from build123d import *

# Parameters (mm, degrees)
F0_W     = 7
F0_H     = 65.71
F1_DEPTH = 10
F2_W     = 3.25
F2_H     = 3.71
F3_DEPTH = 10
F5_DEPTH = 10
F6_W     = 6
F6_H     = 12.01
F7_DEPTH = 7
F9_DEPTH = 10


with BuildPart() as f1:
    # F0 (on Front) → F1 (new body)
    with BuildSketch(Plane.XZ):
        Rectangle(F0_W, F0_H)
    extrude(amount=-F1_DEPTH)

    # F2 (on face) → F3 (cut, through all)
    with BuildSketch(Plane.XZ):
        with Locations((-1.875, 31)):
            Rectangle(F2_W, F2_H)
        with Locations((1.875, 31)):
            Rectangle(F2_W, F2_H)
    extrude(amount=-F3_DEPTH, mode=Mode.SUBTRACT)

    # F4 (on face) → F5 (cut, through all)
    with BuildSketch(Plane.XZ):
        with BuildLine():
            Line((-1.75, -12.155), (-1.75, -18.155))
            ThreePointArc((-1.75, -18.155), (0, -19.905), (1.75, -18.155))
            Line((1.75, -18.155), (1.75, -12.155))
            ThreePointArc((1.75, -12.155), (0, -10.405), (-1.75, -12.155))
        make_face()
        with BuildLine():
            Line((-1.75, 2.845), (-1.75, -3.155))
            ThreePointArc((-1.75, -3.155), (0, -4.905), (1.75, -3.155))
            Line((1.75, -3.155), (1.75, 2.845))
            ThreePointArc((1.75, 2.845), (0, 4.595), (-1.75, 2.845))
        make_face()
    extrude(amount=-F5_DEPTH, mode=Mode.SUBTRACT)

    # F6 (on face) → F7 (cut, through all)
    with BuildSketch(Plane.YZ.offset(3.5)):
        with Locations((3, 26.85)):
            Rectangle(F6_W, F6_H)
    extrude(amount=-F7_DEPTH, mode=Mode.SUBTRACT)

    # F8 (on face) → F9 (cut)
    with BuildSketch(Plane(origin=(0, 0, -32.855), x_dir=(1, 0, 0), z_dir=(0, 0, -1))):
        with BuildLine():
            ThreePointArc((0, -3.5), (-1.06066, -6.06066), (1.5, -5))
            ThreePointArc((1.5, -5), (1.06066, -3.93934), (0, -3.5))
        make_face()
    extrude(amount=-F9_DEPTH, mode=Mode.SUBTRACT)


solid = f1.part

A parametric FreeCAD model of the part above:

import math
import FreeCAD as App
import Part
import Sketcher

V = App.Vector
Q = App.Units.Quantity

doc = App.newDocument("Part")
params = doc.addObject("Spreadsheet::Sheet", "Params")
for row, (alias, value) in enumerate([
    ("sketch1_width", "7 mm"),
    ("sketch1_height", "65.71 mm"),
    ("pad1_length", "10 mm"),
    ("sketch2_width", "3.25 mm"),
    ("sketch2_height", "3.71 mm"),
    ("sketch3_height", "6 mm"),
    ("sketch3_radius", "1.75 mm"),
    ("sketch4_width", "6 mm"),
    ("sketch4_height", "12.01 mm"),
    ("sketch5_radius", "1.5 mm"),
    ("pocket4_length", "10 mm"),
], start=1):
    params.set(f"A{row}", alias)
    params.set(f"B{row}", "=" + value)
    params.setAlias(f"B{row}", alias)

body = doc.addObject("PartDesign::Body", "Body")

# Sketch on XZ plane
sketch1 = doc.addObject("Sketcher::SketchObject", "Sketch")
body.addObject(sketch1)
sketch1.AttachmentSupport = (doc.XZ_Plane, [""])
sketch1.MapMode = "FlatFace"
sketch1.addGeometry([
    Part.LineSegment(V(-4, 33, 0), V(-4, -33, 0)),
    Part.LineSegment(V(-4, -33, 0), V(4, -33, 0)),
    Part.LineSegment(V(4, -33, 0), V(4, 33, 0)),
    Part.LineSegment(V(4, 33, 0), V(-4, 33, 0)),
], False)
sketch1.addConstraint([
    Sketcher.Constraint("Coincident", 0, 2, 1, 1),
    Sketcher.Constraint("Coincident", 1, 2, 2, 1),
    Sketcher.Constraint("Coincident", 2, 2, 3, 1),
    Sketcher.Constraint("Coincident", 3, 2, 0, 1),
    Sketcher.Constraint("Vertical", 0),
    Sketcher.Constraint("Horizontal", 1),
    Sketcher.Constraint("Vertical", 2),
    Sketcher.Constraint("Horizontal", 3),
    Sketcher.Constraint("Symmetric", 0, 2, 2, 2, -1, 1),
    Sketcher.Constraint("DistanceX", 1, 1, 1, 2, Q("7 mm")),
    Sketcher.Constraint("DistanceY", 0, 2, 0, 1, Q("65.71 mm")),
])
sketch1.setExpression("Constraints[9]", "Params.sketch1_width")
sketch1.setExpression("Constraints[10]", "Params.sketch1_height")
pad1 = doc.addObject("PartDesign::Pad", "Pad")
body.addObject(pad1)
pad1.Profile = sketch1
pad1.setExpression("Length", "Params.pad1_length")
pad1.Reversed = True

# Sketch on XZ plane
sketch2 = doc.addObject("Sketcher::SketchObject", "Sketch001")
body.addObject(sketch2)
sketch2.AttachmentSupport = (doc.XZ_Plane, [""])
sketch2.MapMode = "FlatFace"
sketch2.addGeometry([
    Part.LineSegment(V(-3.5, 32.9, 0), V(-3.5, 29.1, 0)),  # 0
    Part.LineSegment(V(-3.5, 29.1, 0), V(-0.2, 29.1, 0)),  # 1
    Part.LineSegment(V(-0.2, 29.1, 0), V(-0.2, 32.9, 0)),  # 2
    Part.LineSegment(V(-0.2, 32.9, 0), V(-3.5, 32.9, 0)),  # 3
    Part.LineSegment(V(0.2, 32.9, 0), V(0.2, 29.1, 0)),  # 4
    Part.LineSegment(V(0.2, 29.1, 0), V(3.5, 29.1, 0)),  # 5
    Part.LineSegment(V(3.5, 29.1, 0), V(3.5, 32.9, 0)),  # 6
    Part.LineSegment(V(3.5, 32.9, 0), V(0.2, 32.9, 0)),  # 7
], False)
sketch2.addConstraint([
    Sketcher.Constraint("Coincident", 0, 2, 1, 1),
    Sketcher.Constraint("Coincident", 1, 2, 2, 1),
    Sketcher.Constraint("Coincident", 2, 2, 3, 1),
    Sketcher.Constraint("Coincident", 3, 2, 0, 1),
    Sketcher.Constraint("Coincident", 4, 2, 5, 1),
    Sketcher.Constraint("Coincident", 5, 2, 6, 1),
    Sketcher.Constraint("Coincident", 6, 2, 7, 1),
    Sketcher.Constraint("Coincident", 7, 2, 4, 1),
    Sketcher.Constraint("Vertical", 0),
    Sketcher.Constraint("Horizontal", 1),
    Sketcher.Constraint("Vertical", 2),
    Sketcher.Constraint("Horizontal", 3),
    Sketcher.Constraint("Vertical", 4),
    Sketcher.Constraint("Horizontal", 5),
    Sketcher.Constraint("Vertical", 6),
    Sketcher.Constraint("Horizontal", 7),
    Sketcher.Constraint("Symmetric", 1, 2, 4, 2, -2),
    Sketcher.Constraint("Symmetric", 3, 2, 6, 2, -2),
    Sketcher.Constraint("DistanceX", 0, 2, 5, 2, Q("7 mm")),
    Sketcher.Constraint("DistanceX", 1, 1, 1, 2, Q("3.25 mm")),
    Sketcher.Constraint("DistanceY", 0, 2, 0, 1, Q("3.71 mm")),
    Sketcher.Constraint("DistanceY", -1, 1, 0, 2, Q("29.145 mm")),
])
sketch2.setExpression("Constraints[19]", "Params.sketch2_width")
sketch2.setExpression("Constraints[20]", "Params.sketch2_height")
pocket1 = doc.addObject("PartDesign::Pocket", "Pocket")
body.addObject(pocket1)
pocket1.Profile = sketch2
pocket1.Type = "ThroughAll"

# Sketch on XZ plane
sketch3 = doc.addObject("Sketcher::SketchObject", "Sketch002")
body.addObject(sketch3)
sketch3.AttachmentSupport = (doc.XZ_Plane, [""])
sketch3.MapMode = "FlatFace"
sketch3.addGeometry([
    Part.LineSegment(V(-1.8, -12.2, 0), V(-1.8, -18.2, 0)),  # 0
    Part.ArcOfCircle(Part.Circle(V(0, -18.2, 0), V(0, 0, 1), 1.8), math.radians(180), math.radians(360)),  # 1
    Part.LineSegment(V(1.8, -18.2, 0), V(1.8, -12.2, 0)),  # 2
    Part.ArcOfCircle(Part.Circle(V(0, -12.2, 0), V(0, 0, 1), 1.8), math.radians(0), math.radians(180)),  # 3
    Part.LineSegment(V(-1.8, 2.8, 0), V(-1.8, -3.2, 0)),  # 4
    Part.ArcOfCircle(Part.Circle(V(0, -3.2, 0), V(0, 0, 1), 1.8), math.radians(180), math.radians(360)),  # 5
    Part.LineSegment(V(1.8, -3.2, 0), V(1.8, 2.8, 0)),  # 6
    Part.ArcOfCircle(Part.Circle(V(0, 2.8, 0), V(0, 0, 1), 1.8), math.radians(0), math.radians(180)),  # 7
], False)
sketch3.addConstraint([
    Sketcher.Constraint("Tangent", 0, 2, 1, 1),
    Sketcher.Constraint("Tangent", 1, 2, 2, 1),
    Sketcher.Constraint("Tangent", 2, 2, 3, 1),
    Sketcher.Constraint("Tangent", 3, 2, 0, 1),
    Sketcher.Constraint("Tangent", 4, 2, 5, 1),
    Sketcher.Constraint("Tangent", 5, 2, 6, 1),
    Sketcher.Constraint("Tangent", 6, 2, 7, 1),
    Sketcher.Constraint("Tangent", 7, 2, 4, 1),
    Sketcher.Constraint("Vertical", 0),
    Sketcher.Constraint("Vertical", 2),
    Sketcher.Constraint("Vertical", 4),
    Sketcher.Constraint("Vertical", 6),
    Sketcher.Constraint("Equal", 3, 5),
    Sketcher.Constraint("PointOnObject", 1, 3, -2),
    Sketcher.Constraint("PointOnObject", 5, 3, -2),
    Sketcher.Constraint("Equal", 2, 4),
    Sketcher.Constraint("DistanceY", 0, 2, 0, 1, Q("6 mm")),
    Sketcher.Constraint("Radius", 1, Q("1.75 mm")),
    Sketcher.Constraint("DistanceY", 3, 3, 5, 3, Q("9 mm")),
    Sketcher.Constraint("DistanceY", 1, 3, -1, 1, Q("18.155 mm")),
])
sketch3.setExpression("Constraints[16]", "Params.sketch3_height")
sketch3.setExpression("Constraints[17]", "Params.sketch3_radius")
pocket2 = doc.addObject("PartDesign::Pocket", "Pocket001")
body.addObject(pocket2)
pocket2.Profile = sketch3
pocket2.Type = "ThroughAll"

# Sketch on YZ plane
sketch4 = doc.addObject("Sketcher::SketchObject", "Sketch003")
body.addObject(sketch4)
sketch4.AttachmentSupport = (doc.YZ_Plane, [""])
sketch4.MapMode = "FlatFace"
sketch4.AttachmentOffset = App.Placement(V(0, 0, 3.5), App.Rotation())
sketch4.addGeometry([
    Part.LineSegment(V(0, 33, 0), V(0, 21, 0)),
    Part.LineSegment(V(0, 21, 0), V(6, 21, 0)),
    Part.LineSegment(V(6, 21, 0), V(6, 33, 0)),
    Part.LineSegment(V(6, 33, 0), V(0, 33, 0)),
], False)
sketch4.addConstraint([
    Sketcher.Constraint("Coincident", 0, 2, 1, 1),
    Sketcher.Constraint("Coincident", 1, 2, 2, 1),
    Sketcher.Constraint("Coincident", 2, 2, 3, 1),
    Sketcher.Constraint("Coincident", 3, 2, 0, 1),
    Sketcher.Constraint("Vertical", 0),
    Sketcher.Constraint("Horizontal", 1),
    Sketcher.Constraint("Vertical", 2),
    Sketcher.Constraint("Horizontal", 3),
    Sketcher.Constraint("PointOnObject", 0, 2, -2),
    Sketcher.Constraint("DistanceX", 1, 1, 1, 2, Q("6 mm")),
    Sketcher.Constraint("DistanceY", 0, 2, 0, 1, Q("12.01 mm")),
    Sketcher.Constraint("DistanceY", -1, 1, 0, 2, Q("20.845 mm")),
])
sketch4.setExpression("Constraints[9]", "Params.sketch4_width")
sketch4.setExpression("Constraints[10]", "Params.sketch4_height")
pocket3 = doc.addObject("PartDesign::Pocket", "Pocket002")
body.addObject(pocket3)
pocket3.Profile = sketch4
pocket3.Type = "ThroughAll"

# Sketch on XY plane
sketch5 = doc.addObject("Sketcher::SketchObject", "Sketch004")
body.addObject(sketch5)
sketch5.AttachmentSupport = (doc.XY_Plane, [""])
sketch5.MapMode = "FlatFace"
sketch5.AttachmentOffset = App.Placement(V(0, 0, -32.855), App.Rotation())
sketch5.addGeometry([
    Part.ArcOfCircle(Part.Circle(V(0, 5, 0), V(0, 0, 1), 1.5), math.radians(0), math.radians(270)),
    Part.ArcOfCircle(Part.Circle(V(0, 5, 0), V(0, 0, 1), 1.5), math.radians(-90), math.radians(0)),
], False)
sketch5.addConstraint([
    Sketcher.Constraint("Tangent", 0, 1, 1, 2),
    Sketcher.Constraint("Coincident", 1, 1, 0, 2),
    Sketcher.Constraint("PointOnObject", 0, 3, -2),
    Sketcher.Constraint("PointOnObject", 1, 1, -2),
    Sketcher.Constraint("Horizontal", 1, 3, 0, 1),
    Sketcher.Constraint("Radius", 0, Q("1.5 mm")),
    Sketcher.Constraint("DistanceY", -1, 1, 0, 3, Q("5 mm")),
])
sketch5.setExpression("Constraints[5]", "Params.sketch5_radius")
pocket4 = doc.addObject("PartDesign::Pocket", "Pocket003")
body.addObject(pocket4)
pocket4.Profile = sketch5
pocket4.setExpression("Length", "Params.pocket4_length")
pocket4.Reversed = True

doc.recompute()
